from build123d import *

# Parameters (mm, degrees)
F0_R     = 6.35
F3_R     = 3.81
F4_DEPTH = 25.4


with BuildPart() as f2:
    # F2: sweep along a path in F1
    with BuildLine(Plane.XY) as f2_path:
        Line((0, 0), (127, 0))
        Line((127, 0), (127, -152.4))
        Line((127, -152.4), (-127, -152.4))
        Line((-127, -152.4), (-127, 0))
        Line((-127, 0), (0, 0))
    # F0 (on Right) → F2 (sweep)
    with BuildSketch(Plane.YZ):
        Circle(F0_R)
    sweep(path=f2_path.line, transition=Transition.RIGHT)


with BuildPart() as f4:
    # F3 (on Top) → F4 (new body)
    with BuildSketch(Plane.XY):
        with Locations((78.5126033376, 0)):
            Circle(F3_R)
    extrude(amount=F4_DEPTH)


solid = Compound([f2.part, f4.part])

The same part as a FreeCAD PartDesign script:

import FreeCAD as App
import Part
import Sketcher

V = App.Vector
Q = App.Units.Quantity

doc = App.newDocument("Part")
body = doc.addObject("PartDesign::Body", "Body")

# Sketch on YZ plane
sketch1 = body.newObject("Sketcher::SketchObject", "Sketch")
sketch1.AttachmentSupport = (doc.getObject("YZ_Plane"), [""])
sketch1.MapMode = "FlatFace"
sketch1.addGeometry(Part.Circle(V(0, 0, 0), V(0, 0, 1), 6), False)
sketch1.addConstraint(Sketcher.Constraint("Coincident", 0, 3, -1, 1))
sketch1.addConstraint(Sketcher.Constraint("Diameter", 0, Q("0.5 in")))

# Sketch on XY plane
sketch2 = body.newObject("Sketcher::SketchObject", "Sketch001")
sketch2.AttachmentSupport = (doc.getObject("XY_Plane"), [""])
sketch2.MapMode = "FlatFace"
sketch2.addGeometry(Part.LineSegment(V(127, 0, 0), V(127, -152, 0)), False)
sketch2.addGeometry(Part.LineSegment(V(127, -152, 0), V(-127, -152, 0)), False)
sketch2.addGeometry(Part.LineSegment(V(-127, -152, 0), V(-127, 0, 0)), False)
sketch2.addGeometry(Part.LineSegment(V(-127, 0, 0), V(127, 0, 0)), False)
sketch2.addConstraint(Sketcher.Constraint("Coincident", 0, 2, 1, 1))
sketch2.addConstraint(Sketcher.Constraint("Coincident", 1, 2, 2, 1))
sketch2.addConstraint(Sketcher.Constraint("Coincident", 2, 2, 3, 1))
sketch2.addConstraint(Sketcher.Constraint("Coincident", 3, 2, 0, 1))
sketch2.addConstraint(Sketcher.Constraint("Vertical", 0))
sketch2.addConstraint(Sketcher.Constraint("Horizontal", 1))
sketch2.addConstraint(Sketcher.Constraint("Vertical", 2))
sketch2.addConstraint(Sketcher.Constraint("Horizontal", 3))
sketch2.addConstraint(Sketcher.Constraint("Symmetric", 2, 2, 3, 2, -1, 1))
sketch2.addConstraint(Sketcher.Constraint("DistanceX", 1, 2, 1, 1, Q("10 in")))
sketch2.addConstraint(Sketcher.Constraint("DistanceY", 0, 2, 0, 1, Q("6 in")))
doc.recompute()

additivepipe = body.newObject("PartDesign::AdditivePipe", "AdditivePipe")
additivepipe.Profile = sketch1
additivepipe.Spine = (sketch2, ["Edge1", "Edge2", "Edge3", "Edge4"])
additivepipe.Transition = "Right corner"
body2 = doc.addObject("PartDesign::Body", "Body001")

# Sketch on XY plane
sketch3 = body2.newObject("Sketcher::SketchObject", "Sketch002")
sketch3.AttachmentSupport = (doc.getObject("XY_Plane001"), [""])
sketch3.MapMode = "FlatFace"
sketch3.addGeometry(Part.Circle(V(78.5, 0, 0), V(0, 0, 1), 3.8), False)
sketch3.addConstraint(Sketcher.Constraint("PointOnObject", 0, 3, -1))
sketch3.addConstraint(Sketcher.Constraint("Diameter", 0, Q("0.3 in")))
sketch3.addConstraint(Sketcher.Constraint("DistanceX", -1, 1, 0, 3, Q("78.512603 mm")))
pad1 = body2.newObject("PartDesign::Pad", "Pad")
pad1.Profile = sketch3
pad1.Length = Q("1 in")

doc.recompute()
